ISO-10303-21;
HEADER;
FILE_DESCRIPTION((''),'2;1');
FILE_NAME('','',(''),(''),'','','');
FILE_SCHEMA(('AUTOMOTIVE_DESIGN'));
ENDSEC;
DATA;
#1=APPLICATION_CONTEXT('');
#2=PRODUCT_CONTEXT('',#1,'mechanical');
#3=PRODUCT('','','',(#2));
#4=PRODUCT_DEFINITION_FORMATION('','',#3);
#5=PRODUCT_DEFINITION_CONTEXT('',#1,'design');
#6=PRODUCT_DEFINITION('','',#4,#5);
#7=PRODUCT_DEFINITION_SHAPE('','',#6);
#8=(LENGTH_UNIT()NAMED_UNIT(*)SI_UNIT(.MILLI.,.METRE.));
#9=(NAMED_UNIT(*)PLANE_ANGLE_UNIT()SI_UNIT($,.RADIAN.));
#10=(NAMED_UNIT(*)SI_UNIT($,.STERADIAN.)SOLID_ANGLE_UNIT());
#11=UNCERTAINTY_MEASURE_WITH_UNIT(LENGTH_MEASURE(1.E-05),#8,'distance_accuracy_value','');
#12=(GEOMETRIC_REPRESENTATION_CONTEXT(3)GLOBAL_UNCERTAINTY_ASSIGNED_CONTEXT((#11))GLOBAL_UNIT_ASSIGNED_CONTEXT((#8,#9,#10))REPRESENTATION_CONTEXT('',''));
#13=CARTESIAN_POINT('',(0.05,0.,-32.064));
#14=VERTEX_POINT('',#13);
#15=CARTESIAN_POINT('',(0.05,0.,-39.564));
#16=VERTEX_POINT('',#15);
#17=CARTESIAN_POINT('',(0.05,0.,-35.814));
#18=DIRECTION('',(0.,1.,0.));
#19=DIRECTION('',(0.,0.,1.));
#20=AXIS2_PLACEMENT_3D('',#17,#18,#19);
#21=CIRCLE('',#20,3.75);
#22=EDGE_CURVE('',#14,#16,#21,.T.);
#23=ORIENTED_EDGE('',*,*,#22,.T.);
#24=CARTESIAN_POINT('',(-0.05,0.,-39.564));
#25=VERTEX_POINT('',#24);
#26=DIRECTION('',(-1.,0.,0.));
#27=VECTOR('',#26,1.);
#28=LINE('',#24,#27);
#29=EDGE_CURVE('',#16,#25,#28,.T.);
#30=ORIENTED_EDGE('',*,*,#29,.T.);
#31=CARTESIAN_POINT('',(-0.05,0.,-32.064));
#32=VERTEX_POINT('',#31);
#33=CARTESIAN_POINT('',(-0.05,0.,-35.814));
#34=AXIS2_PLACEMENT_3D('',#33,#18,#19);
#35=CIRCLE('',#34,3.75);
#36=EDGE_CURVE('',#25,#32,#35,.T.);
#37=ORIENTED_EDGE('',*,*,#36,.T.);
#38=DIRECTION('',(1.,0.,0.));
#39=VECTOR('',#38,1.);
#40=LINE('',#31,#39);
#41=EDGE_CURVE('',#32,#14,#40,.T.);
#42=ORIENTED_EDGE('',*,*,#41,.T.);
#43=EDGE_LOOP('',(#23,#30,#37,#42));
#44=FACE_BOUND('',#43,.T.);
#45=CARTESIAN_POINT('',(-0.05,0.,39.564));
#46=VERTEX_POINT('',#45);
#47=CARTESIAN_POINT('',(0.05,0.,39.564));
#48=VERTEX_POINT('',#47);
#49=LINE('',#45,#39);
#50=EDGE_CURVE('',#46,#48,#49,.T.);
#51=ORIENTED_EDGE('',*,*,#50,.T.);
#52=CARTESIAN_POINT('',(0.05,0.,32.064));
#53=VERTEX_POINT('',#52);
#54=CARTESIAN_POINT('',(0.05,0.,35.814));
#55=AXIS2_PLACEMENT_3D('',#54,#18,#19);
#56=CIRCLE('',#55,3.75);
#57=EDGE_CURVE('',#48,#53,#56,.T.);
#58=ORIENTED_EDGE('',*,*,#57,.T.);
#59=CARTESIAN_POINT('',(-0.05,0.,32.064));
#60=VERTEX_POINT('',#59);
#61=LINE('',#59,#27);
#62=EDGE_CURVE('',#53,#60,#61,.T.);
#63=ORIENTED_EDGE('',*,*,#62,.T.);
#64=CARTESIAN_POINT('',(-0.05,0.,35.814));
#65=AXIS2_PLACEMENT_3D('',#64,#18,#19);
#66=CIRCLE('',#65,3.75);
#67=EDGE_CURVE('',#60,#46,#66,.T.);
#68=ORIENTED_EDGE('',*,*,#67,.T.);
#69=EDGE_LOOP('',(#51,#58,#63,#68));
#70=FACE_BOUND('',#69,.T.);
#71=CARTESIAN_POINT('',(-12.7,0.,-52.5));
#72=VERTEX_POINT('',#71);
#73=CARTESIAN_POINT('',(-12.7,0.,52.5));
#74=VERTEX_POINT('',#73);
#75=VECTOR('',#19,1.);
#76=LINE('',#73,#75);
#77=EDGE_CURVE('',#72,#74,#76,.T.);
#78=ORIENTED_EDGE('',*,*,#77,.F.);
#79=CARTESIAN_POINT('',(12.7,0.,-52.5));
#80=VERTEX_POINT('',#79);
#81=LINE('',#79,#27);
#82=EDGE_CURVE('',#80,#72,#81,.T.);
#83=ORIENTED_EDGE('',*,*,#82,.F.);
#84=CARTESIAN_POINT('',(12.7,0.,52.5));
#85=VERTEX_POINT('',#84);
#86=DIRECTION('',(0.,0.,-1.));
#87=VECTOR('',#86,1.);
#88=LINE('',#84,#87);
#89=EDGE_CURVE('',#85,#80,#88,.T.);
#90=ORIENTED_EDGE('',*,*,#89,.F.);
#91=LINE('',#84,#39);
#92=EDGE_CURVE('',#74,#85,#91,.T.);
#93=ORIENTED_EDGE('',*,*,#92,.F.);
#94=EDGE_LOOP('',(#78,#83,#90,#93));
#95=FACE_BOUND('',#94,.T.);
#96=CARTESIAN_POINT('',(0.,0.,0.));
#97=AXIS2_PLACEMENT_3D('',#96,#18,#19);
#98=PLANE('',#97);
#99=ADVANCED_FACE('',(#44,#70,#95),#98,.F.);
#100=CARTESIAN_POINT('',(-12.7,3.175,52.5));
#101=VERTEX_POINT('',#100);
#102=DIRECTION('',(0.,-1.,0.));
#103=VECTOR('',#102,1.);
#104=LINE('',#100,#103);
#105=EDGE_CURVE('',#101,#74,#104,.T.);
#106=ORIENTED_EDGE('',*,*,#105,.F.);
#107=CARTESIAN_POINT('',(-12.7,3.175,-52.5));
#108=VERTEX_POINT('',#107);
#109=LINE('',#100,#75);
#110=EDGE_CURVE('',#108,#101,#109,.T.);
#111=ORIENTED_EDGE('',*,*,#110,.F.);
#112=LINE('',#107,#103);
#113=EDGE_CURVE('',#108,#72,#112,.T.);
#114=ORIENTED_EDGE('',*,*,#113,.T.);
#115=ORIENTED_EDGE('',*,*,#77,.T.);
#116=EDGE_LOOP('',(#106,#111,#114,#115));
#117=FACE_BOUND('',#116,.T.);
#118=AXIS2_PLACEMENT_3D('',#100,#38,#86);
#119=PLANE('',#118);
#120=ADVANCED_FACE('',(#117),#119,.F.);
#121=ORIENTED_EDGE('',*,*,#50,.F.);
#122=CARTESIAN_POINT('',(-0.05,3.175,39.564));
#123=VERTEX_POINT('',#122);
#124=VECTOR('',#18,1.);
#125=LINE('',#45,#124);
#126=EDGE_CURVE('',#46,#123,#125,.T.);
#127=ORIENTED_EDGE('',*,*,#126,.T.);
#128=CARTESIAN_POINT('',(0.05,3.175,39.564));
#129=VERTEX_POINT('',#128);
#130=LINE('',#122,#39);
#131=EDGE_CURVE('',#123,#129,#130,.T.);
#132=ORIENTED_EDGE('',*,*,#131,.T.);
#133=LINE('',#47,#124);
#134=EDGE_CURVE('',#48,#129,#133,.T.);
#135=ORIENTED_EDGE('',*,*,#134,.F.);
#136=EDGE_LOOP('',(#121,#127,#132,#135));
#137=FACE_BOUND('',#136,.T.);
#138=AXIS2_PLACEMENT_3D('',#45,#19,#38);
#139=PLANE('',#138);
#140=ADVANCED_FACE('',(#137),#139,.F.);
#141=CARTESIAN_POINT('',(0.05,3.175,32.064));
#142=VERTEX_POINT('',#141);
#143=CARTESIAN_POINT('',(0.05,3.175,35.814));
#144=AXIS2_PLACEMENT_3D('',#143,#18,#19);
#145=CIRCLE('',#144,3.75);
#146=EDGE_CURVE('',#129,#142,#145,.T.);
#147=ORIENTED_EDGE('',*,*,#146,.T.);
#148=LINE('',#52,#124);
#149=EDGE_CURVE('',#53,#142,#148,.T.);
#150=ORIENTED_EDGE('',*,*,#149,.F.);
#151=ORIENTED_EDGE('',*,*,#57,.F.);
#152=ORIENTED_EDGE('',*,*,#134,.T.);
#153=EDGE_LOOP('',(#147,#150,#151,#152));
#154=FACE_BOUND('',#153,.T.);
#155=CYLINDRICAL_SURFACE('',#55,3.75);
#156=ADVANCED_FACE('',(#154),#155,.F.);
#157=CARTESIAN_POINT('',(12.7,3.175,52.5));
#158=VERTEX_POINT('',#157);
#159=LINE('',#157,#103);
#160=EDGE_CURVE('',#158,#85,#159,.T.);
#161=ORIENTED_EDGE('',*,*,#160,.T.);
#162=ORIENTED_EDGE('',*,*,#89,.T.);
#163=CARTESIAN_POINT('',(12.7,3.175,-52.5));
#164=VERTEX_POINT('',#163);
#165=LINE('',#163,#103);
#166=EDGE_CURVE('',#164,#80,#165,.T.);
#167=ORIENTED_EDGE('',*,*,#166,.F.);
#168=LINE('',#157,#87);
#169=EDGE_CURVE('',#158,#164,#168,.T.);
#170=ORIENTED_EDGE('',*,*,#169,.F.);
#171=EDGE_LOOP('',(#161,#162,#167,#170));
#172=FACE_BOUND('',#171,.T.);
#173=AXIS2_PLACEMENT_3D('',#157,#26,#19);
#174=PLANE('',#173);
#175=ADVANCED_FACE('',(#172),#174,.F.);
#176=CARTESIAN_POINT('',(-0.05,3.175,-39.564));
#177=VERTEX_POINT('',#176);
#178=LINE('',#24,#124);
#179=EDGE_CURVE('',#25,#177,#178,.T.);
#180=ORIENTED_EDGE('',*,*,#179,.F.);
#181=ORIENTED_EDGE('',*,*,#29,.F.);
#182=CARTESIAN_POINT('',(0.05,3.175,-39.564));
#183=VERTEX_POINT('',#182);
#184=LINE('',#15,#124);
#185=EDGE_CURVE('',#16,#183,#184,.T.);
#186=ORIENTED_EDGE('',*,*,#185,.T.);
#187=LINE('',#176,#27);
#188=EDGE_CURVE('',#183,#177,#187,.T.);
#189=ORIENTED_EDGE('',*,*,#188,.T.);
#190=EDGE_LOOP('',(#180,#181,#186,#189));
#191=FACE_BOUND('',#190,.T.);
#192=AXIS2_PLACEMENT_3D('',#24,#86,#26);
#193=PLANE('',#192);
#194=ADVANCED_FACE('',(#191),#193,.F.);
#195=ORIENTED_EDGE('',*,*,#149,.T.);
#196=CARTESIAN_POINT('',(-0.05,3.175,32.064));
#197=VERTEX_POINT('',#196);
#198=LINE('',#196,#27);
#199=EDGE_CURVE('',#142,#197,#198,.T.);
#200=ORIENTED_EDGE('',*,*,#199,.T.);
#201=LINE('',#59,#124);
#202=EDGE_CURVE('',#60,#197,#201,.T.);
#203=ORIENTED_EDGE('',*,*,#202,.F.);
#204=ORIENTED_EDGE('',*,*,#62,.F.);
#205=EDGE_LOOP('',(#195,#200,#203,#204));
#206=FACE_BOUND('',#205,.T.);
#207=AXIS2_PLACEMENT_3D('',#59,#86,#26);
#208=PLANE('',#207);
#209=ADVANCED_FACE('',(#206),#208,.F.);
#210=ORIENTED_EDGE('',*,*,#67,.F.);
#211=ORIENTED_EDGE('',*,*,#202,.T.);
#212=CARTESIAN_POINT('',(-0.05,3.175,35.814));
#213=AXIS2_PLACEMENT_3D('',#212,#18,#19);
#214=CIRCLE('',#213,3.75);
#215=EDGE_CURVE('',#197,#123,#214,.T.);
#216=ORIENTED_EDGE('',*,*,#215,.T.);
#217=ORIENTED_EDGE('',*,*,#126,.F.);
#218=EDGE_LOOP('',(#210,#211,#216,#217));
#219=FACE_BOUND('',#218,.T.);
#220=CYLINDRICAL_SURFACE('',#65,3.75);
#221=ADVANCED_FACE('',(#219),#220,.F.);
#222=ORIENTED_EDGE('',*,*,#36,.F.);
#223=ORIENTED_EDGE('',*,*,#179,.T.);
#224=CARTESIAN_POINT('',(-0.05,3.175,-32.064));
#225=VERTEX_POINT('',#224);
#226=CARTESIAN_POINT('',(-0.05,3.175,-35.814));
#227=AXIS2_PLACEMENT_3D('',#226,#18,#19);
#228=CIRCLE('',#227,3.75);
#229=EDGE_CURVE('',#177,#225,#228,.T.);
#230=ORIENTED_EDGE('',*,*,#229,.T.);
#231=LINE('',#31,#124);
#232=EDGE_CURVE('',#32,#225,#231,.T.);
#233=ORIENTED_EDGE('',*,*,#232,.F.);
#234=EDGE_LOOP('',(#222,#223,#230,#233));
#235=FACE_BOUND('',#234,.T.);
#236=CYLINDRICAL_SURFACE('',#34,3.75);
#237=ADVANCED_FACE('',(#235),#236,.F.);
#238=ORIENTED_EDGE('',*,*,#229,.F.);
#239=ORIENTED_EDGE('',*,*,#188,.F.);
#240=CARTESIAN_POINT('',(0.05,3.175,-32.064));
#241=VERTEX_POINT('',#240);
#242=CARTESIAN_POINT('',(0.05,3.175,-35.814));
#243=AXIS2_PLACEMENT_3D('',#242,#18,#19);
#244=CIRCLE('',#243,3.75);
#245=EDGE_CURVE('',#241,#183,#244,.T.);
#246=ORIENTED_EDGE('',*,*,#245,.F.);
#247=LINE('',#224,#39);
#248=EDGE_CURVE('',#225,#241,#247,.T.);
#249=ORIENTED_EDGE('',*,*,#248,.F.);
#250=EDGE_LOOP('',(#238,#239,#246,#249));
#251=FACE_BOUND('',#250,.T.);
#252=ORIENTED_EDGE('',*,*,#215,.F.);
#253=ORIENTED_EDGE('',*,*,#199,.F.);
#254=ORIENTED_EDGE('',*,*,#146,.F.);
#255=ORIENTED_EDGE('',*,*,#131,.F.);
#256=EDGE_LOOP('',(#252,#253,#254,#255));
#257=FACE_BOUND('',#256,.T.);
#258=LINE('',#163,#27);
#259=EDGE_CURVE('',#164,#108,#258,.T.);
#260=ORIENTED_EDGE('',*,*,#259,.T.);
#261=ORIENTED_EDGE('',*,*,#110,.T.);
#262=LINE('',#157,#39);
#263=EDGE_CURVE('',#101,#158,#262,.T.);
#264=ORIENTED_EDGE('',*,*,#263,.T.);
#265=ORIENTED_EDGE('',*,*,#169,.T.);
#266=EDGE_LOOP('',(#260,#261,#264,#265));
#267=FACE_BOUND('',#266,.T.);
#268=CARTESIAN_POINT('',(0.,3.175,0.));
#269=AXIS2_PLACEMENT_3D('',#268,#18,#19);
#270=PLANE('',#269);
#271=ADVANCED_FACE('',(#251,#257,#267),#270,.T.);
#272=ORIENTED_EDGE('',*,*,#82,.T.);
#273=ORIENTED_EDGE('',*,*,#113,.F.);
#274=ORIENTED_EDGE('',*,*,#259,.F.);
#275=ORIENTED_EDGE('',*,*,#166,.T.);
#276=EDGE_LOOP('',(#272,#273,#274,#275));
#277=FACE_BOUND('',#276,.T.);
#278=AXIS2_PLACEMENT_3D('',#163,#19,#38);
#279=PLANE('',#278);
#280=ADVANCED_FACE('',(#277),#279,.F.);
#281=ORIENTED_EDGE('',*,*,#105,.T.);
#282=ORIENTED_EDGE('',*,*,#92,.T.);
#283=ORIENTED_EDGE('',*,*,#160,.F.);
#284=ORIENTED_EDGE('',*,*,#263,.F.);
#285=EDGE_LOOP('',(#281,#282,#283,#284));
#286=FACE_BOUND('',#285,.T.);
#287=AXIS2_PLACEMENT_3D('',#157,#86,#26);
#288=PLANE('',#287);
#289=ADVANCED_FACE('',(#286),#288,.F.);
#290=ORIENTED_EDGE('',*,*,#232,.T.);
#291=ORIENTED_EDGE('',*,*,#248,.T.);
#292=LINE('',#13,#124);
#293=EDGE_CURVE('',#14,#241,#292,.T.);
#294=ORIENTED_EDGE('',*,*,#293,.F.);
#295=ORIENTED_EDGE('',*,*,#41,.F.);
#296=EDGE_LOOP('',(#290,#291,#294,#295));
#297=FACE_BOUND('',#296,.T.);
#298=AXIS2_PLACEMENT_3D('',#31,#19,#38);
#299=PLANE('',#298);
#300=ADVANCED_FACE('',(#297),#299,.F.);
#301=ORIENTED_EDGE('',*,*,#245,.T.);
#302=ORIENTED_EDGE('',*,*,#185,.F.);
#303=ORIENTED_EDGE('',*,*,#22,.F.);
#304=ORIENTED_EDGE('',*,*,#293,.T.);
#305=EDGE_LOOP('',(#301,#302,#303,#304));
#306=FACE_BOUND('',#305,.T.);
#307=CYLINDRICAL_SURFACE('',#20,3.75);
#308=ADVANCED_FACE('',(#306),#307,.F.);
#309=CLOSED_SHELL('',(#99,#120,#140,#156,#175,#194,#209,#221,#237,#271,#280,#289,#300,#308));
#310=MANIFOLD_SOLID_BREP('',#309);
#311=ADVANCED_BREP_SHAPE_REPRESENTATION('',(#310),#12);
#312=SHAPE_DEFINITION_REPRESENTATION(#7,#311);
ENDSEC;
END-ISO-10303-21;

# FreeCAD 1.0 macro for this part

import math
import FreeCAD as App
import Part
import Sketcher


def add_polygon(sketch, points):
    """Adds a closed chain of lines whose ends are joined by coincident constraints."""
    first, n = sketch.GeometryCount, len(points)
    for a, b in zip(points, points[1:] + points[:1]):
        sketch.addGeometry(Part.LineSegment(App.Vector(*a, 0), App.Vector(*b, 0)), False)
    for i in range(n):
        sketch.addConstraint(Sketcher.Constraint("Coincident", first + i, 2, first + (i + 1) % n, 1))

doc = App.newDocument("Part")
body = doc.addObject("PartDesign::Body", "Body")

# Sketch on XZ plane
sketch1 = body.newObject("Sketcher::SketchObject", "Sketch")
sketch1.AttachmentSupport = (doc.getObject("XZ_Plane"), [""])
sketch1.MapMode = "FlatFace"
add_polygon(sketch1, [(-12.7, -52.5), (-12.7, 52.5), (12.7, 52.5), (12.7, -52.5)])  # lines 0-3
sketch1.addConstraint(Sketcher.Constraint("Vertical", 0))
sketch1.addConstraint(Sketcher.Constraint("Horizontal", 1))
sketch1.addConstraint(Sketcher.Constraint("Vertical", 2))
sketch1.addConstraint(Sketcher.Constraint("Horizontal", 3))
sketch1.addConstraint(Sketcher.Constraint("Symmetric", 0, 2, 2, 2, -1, 1))
sketch1.addConstraint(Sketcher.Constraint("DistanceY", 0, 1, 0, 2, 105.0))
sketch1.addConstraint(Sketcher.Constraint("DistanceX", 1, 1, 1, 2, 25.4))
pad1 = body.newObject("PartDesign::Pad", "Pad")
pad1.Profile = sketch1
pad1.Length = 3.175
pad1.Reversed = True

# Sketch on XZ plane
sketch2 = body.newObject("Sketcher::SketchObject", "Sketch001")
sketch2.AttachmentSupport = (doc.getObject("XZ_Plane"), [""])
sketch2.MapMode = "FlatFace"
sketch2.AttachmentOffset = App.Placement(App.Vector(0, 0, -3.175), App.Rotation())
sketch2.addGeometry(Part.LineSegment(App.Vector(0.05, -39.564, 0), App.Vector(-0.05, -39.564, 0)), False)
sketch2.addGeometry(Part.ArcOfCircle(Part.Circle(App.Vector(-0.05, -35.814, 0), App.Vector(0, 0, 1), 3.75), math.radians(90), math.radians(270)), False)
sketch2.addGeometry(Part.LineSegment(App.Vector(-0.05, -32.064, 0), App.Vector(0.05, -32.064, 0)), False)
sketch2.addGeometry(Part.ArcOfCircle(Part.Circle(App.Vector(0.05, -35.814, 0), App.Vector(0, 0, 1), 3.75), math.radians(-90), math.radians(90)), False)
sketch2.addGeometry(Part.LineSegment(App.Vector(0.05, 32.064, 0), App.Vector(-0.05, 32.064, 0)), False)
sketch2.addGeometry(Part.ArcOfCircle(Part.Circle(App.Vector(-0.05, 35.814, 0), App.Vector(0, 0, 1), 3.75), math.radians(90), math.radians(270)), False)
sketch2.addGeometry(Part.LineSegment(App.Vector(-0.05, 39.564, 0), App.Vector(0.05, 39.564, 0)), False)
sketch2.addGeometry(Part.ArcOfCircle(Part.Circle(App.Vector(0.05, 35.814, 0), App.Vector(0, 0, 1), 3.75), math.radians(-90), math.radians(90)), False)
sketch2.addConstraint(Sketcher.Constraint("Tangent", 0, 2, 1, 2))
sketch2.addConstraint(Sketcher.Constraint("Tangent", 1, 1, 2, 1))
sketch2.addConstraint(Sketcher.Constraint("Tangent", 2, 2, 3, 2))
sketch2.addConstraint(Sketcher.Constraint("Tangent", 3, 1, 0, 1))
sketch2.addConstraint(Sketcher.Constraint("Tangent", 4, 2, 5, 2))
sketch2.addConstraint(Sketcher.Constraint("Tangent", 5, 1, 6, 1))
sketch2.addConstraint(Sketcher.Constraint("Tangent", 6, 2, 7, 2))
sketch2.addConstraint(Sketcher.Constraint("Tangent", 7, 1, 4, 1))
sketch2.addConstraint(Sketcher.Constraint("Horizontal", 0))
sketch2.addConstraint(Sketcher.Constraint("Horizontal", 2))
sketch2.addConstraint(Sketcher.Constraint("Horizontal", 4))
sketch2.addConstraint(Sketcher.Constraint("Horizontal", 6))
sketch2.addConstraint(Sketcher.Constraint("Equal", 3, 5))
sketch2.addConstraint(Sketcher.Constraint("Symmetric", 3, 3, 5, 3, -1, 1))
sketch2.addConstraint(Sketcher.Constraint("Vertical", 1, 3, 5, 3))
sketch2.addConstraint(Sketcher.Constraint("Vertical", 3, 3, 7, 3))
sketch2.addConstraint(Sketcher.Constraint("Radius", 1, 3.75))
sketch2.addConstraint(Sketcher.Constraint("DistanceX", 0, 2, 0, 1, 0.1))
sketch2.addConstraint(Sketcher.Constraint("DistanceY", 1, 3, -1, 1, 35.814))
pocket1 = body.newObject("PartDesign::Pocket", "Pocket")
pocket1.Profile = sketch2
pocket1.Type = "ThroughAll"
pocket1.Reversed = True

doc.recompute()
